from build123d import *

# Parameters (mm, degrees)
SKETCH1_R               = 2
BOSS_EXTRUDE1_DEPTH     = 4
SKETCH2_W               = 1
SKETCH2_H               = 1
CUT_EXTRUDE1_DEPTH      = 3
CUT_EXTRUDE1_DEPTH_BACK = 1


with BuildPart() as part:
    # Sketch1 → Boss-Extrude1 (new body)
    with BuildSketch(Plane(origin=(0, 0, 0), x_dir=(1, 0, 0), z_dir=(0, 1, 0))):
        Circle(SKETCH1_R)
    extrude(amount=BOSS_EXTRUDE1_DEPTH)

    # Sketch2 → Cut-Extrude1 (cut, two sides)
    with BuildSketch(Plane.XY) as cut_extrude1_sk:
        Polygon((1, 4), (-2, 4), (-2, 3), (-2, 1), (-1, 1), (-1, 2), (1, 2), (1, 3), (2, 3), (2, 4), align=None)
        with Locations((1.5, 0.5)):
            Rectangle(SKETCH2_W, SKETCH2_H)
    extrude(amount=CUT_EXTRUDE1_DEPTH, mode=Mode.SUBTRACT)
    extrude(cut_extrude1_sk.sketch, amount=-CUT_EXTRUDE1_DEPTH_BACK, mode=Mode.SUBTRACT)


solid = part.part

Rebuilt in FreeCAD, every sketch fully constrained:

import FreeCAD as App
import Part
import Sketcher
from FreeCAD import Vector
Q = App.Units.Quantity


def add_polygon(sketch, points):
    """Adds a closed chain of lines whose ends are joined by coincident constraints."""
    first, n = sketch.GeometryCount, len(points)
    for a, b in zip(points, points[1:] + points[:1]):
        sketch.addGeometry(Part.LineSegment(App.Vector(*a, 0), App.Vector(*b, 0)), False)
    for i in range(n):
        sketch.addConstraint(Sketcher.Constraint("Coincident", first + i, 2, first + (i + 1) % n, 1))

doc = App.newDocument("Part")
body = doc.addObject("PartDesign::Body", "Body")

sketch1 = body.newObject("Sketcher::SketchObject", "Sketch")
sketch1.AttachmentSupport = (doc.getObject("XZ_Plane"), [""])
sketch1.MapMode = "FlatFace"
sketch1.addGeometry(Part.Circle(Vector(0, 0, 0), Vector(0, 0, 1), 2), False)
sketch1.addConstraint([
    Sketcher.Constraint("Coincident", 0, 3, -1, 1),
    Sketcher.Constraint("Diameter", 0, Q("4 mm")),
])
pad1 = body.newObject("PartDesign::Pad", "Pad")
pad1.Profile = sketch1
pad1.Length = 4
pad1.Reversed = True

sketch2 = body.newObject("Sketcher::SketchObject", "Sketch001")
sketch2.AttachmentSupport = (doc.getObject("XY_Plane"), [""])
sketch2.MapMode = "FlatFace"
add_polygon(sketch2, [(-2, 4), (-2, 1), (-1, 1), (-1, 2), (1, 2), (1, 3), (2, 3), (2, 4)])
add_polygon(sketch2, [(1, 1), (1, 0), (2, 0), (2, 1)])
sketch2.addConstraint([
    Sketcher.Constraint("Vertical", 0),
    Sketcher.Constraint("Horizontal", 1),
    Sketcher.Constraint("Vertical", 2),
    Sketcher.Constraint("Horizontal", 3),
    Sketcher.Constraint("Vertical", 4),
    Sketcher.Constraint("Horizontal", 5),
    Sketcher.Constraint("Vertical", 6),
    Sketcher.Constraint("Horizontal", 7),
    Sketcher.Constraint("Vertical", 8),
    Sketcher.Constraint("Horizontal", 9),
    Sketcher.Constraint("Vertical", 10),
    Sketcher.Constraint("Horizontal", 11),
    Sketcher.Constraint("Symmetric", 0, 2, 10, 2, -2),
    Sketcher.Constraint("PointOnObject", 8, 2, -1),
    Sketcher.Constraint("Vertical", 4, 2, 8, 2),
    Sketcher.Constraint("Vertical", 6, 2, 9, 2),
    Sketcher.Constraint("Equal", 1, 5),
    Sketcher.Constraint("Equal", 11, 2),
    Sketcher.Constraint("Equal", 2, 4),
    Sketcher.Constraint("Equal", 4, 6),
    Sketcher.Constraint("Equal", 6, 8),
    Sketcher.Constraint("DistanceX", 1, 1, 1, 2, Q("1 mm")),
    Sketcher.Constraint("DistanceX", 3, 1, 3, 2, Q("2 mm")),
])
pocket1 = body.newObject("PartDesign::Pocket", "Pocket")
pocket1.Profile = sketch2
pocket1.Type = "TwoLengths"
pocket1.Length = 3
pocket1.Length2 = 1
pocket1.Reversed = True

doc.recompute()
